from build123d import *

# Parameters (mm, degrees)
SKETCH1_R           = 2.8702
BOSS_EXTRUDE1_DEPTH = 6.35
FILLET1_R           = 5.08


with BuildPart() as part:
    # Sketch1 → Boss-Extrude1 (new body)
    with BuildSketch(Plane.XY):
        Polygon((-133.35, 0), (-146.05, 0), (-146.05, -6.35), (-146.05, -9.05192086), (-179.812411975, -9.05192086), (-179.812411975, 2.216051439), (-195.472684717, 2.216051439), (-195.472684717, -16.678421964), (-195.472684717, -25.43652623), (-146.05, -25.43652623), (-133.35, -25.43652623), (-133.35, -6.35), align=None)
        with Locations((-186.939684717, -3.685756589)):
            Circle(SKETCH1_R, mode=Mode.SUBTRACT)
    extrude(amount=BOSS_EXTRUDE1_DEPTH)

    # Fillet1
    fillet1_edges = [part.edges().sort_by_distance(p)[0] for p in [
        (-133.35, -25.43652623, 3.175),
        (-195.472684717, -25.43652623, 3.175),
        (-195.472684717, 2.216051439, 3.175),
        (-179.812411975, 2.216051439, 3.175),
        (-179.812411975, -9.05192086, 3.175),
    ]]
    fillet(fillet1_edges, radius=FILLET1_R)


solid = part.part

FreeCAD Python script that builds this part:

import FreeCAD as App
import Part
import Sketcher

V = App.Vector
Q = App.Units.Quantity


def edges_at(feature, points):
    """Names of the edges that pass closest to the given points."""
    edges = feature.Shape.Edges
    near = lambda p: min(range(len(edges)), key=lambda i: edges[i].distToShape(Part.Vertex(*p))[0])
    return sorted({f"Edge{near(p) + 1}" for p in points})


def add_polygon(sketch, points):
    """Adds a closed chain of lines whose ends are joined by coincident constraints."""
    first, n = sketch.GeometryCount, len(points)
    for a, b in zip(points, points[1:] + points[:1]):
        sketch.addGeometry(Part.LineSegment(App.Vector(*a, 0), App.Vector(*b, 0)), False)
    for i in range(n):
        sketch.addConstraint(Sketcher.Constraint("Coincident", first + i, 2, first + (i + 1) % n, 1))

doc = App.newDocument("Part")
body = doc.addObject("PartDesign::Body", "Body")

# Sketch on XY plane
sketch1 = doc.addObject("Sketcher::SketchObject", "Sketch")
body.addObject(sketch1)
sketch1.AttachmentSupport = (doc.XY_Plane, [""])
sketch1.MapMode = "FlatFace"
add_polygon(sketch1, [(-133.3, 0), (-146.1, 0), (-146.1, -9.1), (-179.8, -9.1), (-179.8, 2.2), (-195.5, 2.2), (-195.5, -25.4), (-133.3, -25.4)])  # lines 0-7
sketch1.addGeometry(Part.Circle(V(-186.9, -3.7, 0), V(0, 0, 1), 2.9), False)  # 8
sketch1.addConstraint(Sketcher.Constraint("Horizontal", 0))
sketch1.addConstraint(Sketcher.Constraint("Vertical", 1))
sketch1.addConstraint(Sketcher.Constraint("Horizontal", 2))
sketch1.addConstraint(Sketcher.Constraint("Vertical", 3))
sketch1.addConstraint(Sketcher.Constraint("Horizontal", 4))
sketch1.addConstraint(Sketcher.Constraint("Vertical", 5))
sketch1.addConstraint(Sketcher.Constraint("Horizontal", 6))
sketch1.addConstraint(Sketcher.Constraint("Vertical", 7))
sketch1.addConstraint(Sketcher.Constraint("PointOnObject", 0, 2, -1))
sketch1.addConstraint(Sketcher.Constraint("Diameter", 8, Q("0.226 in")))
sketch1.addConstraint(Sketcher.Constraint("DistanceX", 0, 2, 0, 1, Q("0.5 in")))
sketch1.addConstraint(Sketcher.Constraint("DistanceX", 0, 2, -1, 1, Q("5.75 in")))
sketch1.addConstraint(Sketcher.Constraint("DistanceX", 2, 2, 2, 1, 33.762412))
sketch1.addConstraint(Sketcher.Constraint("DistanceY", 1, 2, 1, 1, 9.051921))
sketch1.addConstraint(Sketcher.Constraint("DistanceX", 4, 2, 8, 3, 8.533))
sketch1.addConstraint(Sketcher.Constraint("DistanceX", 4, 2, 4, 1, 15.660273))
sketch1.addConstraint(Sketcher.Constraint("DistanceY", 3, 1, 3, 2, 11.267972))
sketch1.addConstraint(Sketcher.Constraint("DistanceY", 5, 2, 5, 1, 27.652578))
sketch1.addConstraint(Sketcher.Constraint("DistanceY", 8, 3, 3, 2, 5.901808))
pad1 = doc.addObject("PartDesign::Pad", "Pad")
body.addObject(pad1)
pad1.Profile = sketch1
pad1.Length = Q("0.25 in")
doc.recompute()

fillet = doc.addObject("PartDesign::Fillet", "Fillet")
body.addObject(fillet)
fillet.Base = (pad1, edges_at(pad1, [
    (-133.35, -25.437, 3.175),
    (-195.473, -25.437, 3.175),
    (-195.473, 2.216, 3.175),
    (-179.812, 2.216, 3.175),
    (-179.812, -9.052, 3.175),
]))
fillet.Radius = Q("0.2 in")

doc.recompute()
